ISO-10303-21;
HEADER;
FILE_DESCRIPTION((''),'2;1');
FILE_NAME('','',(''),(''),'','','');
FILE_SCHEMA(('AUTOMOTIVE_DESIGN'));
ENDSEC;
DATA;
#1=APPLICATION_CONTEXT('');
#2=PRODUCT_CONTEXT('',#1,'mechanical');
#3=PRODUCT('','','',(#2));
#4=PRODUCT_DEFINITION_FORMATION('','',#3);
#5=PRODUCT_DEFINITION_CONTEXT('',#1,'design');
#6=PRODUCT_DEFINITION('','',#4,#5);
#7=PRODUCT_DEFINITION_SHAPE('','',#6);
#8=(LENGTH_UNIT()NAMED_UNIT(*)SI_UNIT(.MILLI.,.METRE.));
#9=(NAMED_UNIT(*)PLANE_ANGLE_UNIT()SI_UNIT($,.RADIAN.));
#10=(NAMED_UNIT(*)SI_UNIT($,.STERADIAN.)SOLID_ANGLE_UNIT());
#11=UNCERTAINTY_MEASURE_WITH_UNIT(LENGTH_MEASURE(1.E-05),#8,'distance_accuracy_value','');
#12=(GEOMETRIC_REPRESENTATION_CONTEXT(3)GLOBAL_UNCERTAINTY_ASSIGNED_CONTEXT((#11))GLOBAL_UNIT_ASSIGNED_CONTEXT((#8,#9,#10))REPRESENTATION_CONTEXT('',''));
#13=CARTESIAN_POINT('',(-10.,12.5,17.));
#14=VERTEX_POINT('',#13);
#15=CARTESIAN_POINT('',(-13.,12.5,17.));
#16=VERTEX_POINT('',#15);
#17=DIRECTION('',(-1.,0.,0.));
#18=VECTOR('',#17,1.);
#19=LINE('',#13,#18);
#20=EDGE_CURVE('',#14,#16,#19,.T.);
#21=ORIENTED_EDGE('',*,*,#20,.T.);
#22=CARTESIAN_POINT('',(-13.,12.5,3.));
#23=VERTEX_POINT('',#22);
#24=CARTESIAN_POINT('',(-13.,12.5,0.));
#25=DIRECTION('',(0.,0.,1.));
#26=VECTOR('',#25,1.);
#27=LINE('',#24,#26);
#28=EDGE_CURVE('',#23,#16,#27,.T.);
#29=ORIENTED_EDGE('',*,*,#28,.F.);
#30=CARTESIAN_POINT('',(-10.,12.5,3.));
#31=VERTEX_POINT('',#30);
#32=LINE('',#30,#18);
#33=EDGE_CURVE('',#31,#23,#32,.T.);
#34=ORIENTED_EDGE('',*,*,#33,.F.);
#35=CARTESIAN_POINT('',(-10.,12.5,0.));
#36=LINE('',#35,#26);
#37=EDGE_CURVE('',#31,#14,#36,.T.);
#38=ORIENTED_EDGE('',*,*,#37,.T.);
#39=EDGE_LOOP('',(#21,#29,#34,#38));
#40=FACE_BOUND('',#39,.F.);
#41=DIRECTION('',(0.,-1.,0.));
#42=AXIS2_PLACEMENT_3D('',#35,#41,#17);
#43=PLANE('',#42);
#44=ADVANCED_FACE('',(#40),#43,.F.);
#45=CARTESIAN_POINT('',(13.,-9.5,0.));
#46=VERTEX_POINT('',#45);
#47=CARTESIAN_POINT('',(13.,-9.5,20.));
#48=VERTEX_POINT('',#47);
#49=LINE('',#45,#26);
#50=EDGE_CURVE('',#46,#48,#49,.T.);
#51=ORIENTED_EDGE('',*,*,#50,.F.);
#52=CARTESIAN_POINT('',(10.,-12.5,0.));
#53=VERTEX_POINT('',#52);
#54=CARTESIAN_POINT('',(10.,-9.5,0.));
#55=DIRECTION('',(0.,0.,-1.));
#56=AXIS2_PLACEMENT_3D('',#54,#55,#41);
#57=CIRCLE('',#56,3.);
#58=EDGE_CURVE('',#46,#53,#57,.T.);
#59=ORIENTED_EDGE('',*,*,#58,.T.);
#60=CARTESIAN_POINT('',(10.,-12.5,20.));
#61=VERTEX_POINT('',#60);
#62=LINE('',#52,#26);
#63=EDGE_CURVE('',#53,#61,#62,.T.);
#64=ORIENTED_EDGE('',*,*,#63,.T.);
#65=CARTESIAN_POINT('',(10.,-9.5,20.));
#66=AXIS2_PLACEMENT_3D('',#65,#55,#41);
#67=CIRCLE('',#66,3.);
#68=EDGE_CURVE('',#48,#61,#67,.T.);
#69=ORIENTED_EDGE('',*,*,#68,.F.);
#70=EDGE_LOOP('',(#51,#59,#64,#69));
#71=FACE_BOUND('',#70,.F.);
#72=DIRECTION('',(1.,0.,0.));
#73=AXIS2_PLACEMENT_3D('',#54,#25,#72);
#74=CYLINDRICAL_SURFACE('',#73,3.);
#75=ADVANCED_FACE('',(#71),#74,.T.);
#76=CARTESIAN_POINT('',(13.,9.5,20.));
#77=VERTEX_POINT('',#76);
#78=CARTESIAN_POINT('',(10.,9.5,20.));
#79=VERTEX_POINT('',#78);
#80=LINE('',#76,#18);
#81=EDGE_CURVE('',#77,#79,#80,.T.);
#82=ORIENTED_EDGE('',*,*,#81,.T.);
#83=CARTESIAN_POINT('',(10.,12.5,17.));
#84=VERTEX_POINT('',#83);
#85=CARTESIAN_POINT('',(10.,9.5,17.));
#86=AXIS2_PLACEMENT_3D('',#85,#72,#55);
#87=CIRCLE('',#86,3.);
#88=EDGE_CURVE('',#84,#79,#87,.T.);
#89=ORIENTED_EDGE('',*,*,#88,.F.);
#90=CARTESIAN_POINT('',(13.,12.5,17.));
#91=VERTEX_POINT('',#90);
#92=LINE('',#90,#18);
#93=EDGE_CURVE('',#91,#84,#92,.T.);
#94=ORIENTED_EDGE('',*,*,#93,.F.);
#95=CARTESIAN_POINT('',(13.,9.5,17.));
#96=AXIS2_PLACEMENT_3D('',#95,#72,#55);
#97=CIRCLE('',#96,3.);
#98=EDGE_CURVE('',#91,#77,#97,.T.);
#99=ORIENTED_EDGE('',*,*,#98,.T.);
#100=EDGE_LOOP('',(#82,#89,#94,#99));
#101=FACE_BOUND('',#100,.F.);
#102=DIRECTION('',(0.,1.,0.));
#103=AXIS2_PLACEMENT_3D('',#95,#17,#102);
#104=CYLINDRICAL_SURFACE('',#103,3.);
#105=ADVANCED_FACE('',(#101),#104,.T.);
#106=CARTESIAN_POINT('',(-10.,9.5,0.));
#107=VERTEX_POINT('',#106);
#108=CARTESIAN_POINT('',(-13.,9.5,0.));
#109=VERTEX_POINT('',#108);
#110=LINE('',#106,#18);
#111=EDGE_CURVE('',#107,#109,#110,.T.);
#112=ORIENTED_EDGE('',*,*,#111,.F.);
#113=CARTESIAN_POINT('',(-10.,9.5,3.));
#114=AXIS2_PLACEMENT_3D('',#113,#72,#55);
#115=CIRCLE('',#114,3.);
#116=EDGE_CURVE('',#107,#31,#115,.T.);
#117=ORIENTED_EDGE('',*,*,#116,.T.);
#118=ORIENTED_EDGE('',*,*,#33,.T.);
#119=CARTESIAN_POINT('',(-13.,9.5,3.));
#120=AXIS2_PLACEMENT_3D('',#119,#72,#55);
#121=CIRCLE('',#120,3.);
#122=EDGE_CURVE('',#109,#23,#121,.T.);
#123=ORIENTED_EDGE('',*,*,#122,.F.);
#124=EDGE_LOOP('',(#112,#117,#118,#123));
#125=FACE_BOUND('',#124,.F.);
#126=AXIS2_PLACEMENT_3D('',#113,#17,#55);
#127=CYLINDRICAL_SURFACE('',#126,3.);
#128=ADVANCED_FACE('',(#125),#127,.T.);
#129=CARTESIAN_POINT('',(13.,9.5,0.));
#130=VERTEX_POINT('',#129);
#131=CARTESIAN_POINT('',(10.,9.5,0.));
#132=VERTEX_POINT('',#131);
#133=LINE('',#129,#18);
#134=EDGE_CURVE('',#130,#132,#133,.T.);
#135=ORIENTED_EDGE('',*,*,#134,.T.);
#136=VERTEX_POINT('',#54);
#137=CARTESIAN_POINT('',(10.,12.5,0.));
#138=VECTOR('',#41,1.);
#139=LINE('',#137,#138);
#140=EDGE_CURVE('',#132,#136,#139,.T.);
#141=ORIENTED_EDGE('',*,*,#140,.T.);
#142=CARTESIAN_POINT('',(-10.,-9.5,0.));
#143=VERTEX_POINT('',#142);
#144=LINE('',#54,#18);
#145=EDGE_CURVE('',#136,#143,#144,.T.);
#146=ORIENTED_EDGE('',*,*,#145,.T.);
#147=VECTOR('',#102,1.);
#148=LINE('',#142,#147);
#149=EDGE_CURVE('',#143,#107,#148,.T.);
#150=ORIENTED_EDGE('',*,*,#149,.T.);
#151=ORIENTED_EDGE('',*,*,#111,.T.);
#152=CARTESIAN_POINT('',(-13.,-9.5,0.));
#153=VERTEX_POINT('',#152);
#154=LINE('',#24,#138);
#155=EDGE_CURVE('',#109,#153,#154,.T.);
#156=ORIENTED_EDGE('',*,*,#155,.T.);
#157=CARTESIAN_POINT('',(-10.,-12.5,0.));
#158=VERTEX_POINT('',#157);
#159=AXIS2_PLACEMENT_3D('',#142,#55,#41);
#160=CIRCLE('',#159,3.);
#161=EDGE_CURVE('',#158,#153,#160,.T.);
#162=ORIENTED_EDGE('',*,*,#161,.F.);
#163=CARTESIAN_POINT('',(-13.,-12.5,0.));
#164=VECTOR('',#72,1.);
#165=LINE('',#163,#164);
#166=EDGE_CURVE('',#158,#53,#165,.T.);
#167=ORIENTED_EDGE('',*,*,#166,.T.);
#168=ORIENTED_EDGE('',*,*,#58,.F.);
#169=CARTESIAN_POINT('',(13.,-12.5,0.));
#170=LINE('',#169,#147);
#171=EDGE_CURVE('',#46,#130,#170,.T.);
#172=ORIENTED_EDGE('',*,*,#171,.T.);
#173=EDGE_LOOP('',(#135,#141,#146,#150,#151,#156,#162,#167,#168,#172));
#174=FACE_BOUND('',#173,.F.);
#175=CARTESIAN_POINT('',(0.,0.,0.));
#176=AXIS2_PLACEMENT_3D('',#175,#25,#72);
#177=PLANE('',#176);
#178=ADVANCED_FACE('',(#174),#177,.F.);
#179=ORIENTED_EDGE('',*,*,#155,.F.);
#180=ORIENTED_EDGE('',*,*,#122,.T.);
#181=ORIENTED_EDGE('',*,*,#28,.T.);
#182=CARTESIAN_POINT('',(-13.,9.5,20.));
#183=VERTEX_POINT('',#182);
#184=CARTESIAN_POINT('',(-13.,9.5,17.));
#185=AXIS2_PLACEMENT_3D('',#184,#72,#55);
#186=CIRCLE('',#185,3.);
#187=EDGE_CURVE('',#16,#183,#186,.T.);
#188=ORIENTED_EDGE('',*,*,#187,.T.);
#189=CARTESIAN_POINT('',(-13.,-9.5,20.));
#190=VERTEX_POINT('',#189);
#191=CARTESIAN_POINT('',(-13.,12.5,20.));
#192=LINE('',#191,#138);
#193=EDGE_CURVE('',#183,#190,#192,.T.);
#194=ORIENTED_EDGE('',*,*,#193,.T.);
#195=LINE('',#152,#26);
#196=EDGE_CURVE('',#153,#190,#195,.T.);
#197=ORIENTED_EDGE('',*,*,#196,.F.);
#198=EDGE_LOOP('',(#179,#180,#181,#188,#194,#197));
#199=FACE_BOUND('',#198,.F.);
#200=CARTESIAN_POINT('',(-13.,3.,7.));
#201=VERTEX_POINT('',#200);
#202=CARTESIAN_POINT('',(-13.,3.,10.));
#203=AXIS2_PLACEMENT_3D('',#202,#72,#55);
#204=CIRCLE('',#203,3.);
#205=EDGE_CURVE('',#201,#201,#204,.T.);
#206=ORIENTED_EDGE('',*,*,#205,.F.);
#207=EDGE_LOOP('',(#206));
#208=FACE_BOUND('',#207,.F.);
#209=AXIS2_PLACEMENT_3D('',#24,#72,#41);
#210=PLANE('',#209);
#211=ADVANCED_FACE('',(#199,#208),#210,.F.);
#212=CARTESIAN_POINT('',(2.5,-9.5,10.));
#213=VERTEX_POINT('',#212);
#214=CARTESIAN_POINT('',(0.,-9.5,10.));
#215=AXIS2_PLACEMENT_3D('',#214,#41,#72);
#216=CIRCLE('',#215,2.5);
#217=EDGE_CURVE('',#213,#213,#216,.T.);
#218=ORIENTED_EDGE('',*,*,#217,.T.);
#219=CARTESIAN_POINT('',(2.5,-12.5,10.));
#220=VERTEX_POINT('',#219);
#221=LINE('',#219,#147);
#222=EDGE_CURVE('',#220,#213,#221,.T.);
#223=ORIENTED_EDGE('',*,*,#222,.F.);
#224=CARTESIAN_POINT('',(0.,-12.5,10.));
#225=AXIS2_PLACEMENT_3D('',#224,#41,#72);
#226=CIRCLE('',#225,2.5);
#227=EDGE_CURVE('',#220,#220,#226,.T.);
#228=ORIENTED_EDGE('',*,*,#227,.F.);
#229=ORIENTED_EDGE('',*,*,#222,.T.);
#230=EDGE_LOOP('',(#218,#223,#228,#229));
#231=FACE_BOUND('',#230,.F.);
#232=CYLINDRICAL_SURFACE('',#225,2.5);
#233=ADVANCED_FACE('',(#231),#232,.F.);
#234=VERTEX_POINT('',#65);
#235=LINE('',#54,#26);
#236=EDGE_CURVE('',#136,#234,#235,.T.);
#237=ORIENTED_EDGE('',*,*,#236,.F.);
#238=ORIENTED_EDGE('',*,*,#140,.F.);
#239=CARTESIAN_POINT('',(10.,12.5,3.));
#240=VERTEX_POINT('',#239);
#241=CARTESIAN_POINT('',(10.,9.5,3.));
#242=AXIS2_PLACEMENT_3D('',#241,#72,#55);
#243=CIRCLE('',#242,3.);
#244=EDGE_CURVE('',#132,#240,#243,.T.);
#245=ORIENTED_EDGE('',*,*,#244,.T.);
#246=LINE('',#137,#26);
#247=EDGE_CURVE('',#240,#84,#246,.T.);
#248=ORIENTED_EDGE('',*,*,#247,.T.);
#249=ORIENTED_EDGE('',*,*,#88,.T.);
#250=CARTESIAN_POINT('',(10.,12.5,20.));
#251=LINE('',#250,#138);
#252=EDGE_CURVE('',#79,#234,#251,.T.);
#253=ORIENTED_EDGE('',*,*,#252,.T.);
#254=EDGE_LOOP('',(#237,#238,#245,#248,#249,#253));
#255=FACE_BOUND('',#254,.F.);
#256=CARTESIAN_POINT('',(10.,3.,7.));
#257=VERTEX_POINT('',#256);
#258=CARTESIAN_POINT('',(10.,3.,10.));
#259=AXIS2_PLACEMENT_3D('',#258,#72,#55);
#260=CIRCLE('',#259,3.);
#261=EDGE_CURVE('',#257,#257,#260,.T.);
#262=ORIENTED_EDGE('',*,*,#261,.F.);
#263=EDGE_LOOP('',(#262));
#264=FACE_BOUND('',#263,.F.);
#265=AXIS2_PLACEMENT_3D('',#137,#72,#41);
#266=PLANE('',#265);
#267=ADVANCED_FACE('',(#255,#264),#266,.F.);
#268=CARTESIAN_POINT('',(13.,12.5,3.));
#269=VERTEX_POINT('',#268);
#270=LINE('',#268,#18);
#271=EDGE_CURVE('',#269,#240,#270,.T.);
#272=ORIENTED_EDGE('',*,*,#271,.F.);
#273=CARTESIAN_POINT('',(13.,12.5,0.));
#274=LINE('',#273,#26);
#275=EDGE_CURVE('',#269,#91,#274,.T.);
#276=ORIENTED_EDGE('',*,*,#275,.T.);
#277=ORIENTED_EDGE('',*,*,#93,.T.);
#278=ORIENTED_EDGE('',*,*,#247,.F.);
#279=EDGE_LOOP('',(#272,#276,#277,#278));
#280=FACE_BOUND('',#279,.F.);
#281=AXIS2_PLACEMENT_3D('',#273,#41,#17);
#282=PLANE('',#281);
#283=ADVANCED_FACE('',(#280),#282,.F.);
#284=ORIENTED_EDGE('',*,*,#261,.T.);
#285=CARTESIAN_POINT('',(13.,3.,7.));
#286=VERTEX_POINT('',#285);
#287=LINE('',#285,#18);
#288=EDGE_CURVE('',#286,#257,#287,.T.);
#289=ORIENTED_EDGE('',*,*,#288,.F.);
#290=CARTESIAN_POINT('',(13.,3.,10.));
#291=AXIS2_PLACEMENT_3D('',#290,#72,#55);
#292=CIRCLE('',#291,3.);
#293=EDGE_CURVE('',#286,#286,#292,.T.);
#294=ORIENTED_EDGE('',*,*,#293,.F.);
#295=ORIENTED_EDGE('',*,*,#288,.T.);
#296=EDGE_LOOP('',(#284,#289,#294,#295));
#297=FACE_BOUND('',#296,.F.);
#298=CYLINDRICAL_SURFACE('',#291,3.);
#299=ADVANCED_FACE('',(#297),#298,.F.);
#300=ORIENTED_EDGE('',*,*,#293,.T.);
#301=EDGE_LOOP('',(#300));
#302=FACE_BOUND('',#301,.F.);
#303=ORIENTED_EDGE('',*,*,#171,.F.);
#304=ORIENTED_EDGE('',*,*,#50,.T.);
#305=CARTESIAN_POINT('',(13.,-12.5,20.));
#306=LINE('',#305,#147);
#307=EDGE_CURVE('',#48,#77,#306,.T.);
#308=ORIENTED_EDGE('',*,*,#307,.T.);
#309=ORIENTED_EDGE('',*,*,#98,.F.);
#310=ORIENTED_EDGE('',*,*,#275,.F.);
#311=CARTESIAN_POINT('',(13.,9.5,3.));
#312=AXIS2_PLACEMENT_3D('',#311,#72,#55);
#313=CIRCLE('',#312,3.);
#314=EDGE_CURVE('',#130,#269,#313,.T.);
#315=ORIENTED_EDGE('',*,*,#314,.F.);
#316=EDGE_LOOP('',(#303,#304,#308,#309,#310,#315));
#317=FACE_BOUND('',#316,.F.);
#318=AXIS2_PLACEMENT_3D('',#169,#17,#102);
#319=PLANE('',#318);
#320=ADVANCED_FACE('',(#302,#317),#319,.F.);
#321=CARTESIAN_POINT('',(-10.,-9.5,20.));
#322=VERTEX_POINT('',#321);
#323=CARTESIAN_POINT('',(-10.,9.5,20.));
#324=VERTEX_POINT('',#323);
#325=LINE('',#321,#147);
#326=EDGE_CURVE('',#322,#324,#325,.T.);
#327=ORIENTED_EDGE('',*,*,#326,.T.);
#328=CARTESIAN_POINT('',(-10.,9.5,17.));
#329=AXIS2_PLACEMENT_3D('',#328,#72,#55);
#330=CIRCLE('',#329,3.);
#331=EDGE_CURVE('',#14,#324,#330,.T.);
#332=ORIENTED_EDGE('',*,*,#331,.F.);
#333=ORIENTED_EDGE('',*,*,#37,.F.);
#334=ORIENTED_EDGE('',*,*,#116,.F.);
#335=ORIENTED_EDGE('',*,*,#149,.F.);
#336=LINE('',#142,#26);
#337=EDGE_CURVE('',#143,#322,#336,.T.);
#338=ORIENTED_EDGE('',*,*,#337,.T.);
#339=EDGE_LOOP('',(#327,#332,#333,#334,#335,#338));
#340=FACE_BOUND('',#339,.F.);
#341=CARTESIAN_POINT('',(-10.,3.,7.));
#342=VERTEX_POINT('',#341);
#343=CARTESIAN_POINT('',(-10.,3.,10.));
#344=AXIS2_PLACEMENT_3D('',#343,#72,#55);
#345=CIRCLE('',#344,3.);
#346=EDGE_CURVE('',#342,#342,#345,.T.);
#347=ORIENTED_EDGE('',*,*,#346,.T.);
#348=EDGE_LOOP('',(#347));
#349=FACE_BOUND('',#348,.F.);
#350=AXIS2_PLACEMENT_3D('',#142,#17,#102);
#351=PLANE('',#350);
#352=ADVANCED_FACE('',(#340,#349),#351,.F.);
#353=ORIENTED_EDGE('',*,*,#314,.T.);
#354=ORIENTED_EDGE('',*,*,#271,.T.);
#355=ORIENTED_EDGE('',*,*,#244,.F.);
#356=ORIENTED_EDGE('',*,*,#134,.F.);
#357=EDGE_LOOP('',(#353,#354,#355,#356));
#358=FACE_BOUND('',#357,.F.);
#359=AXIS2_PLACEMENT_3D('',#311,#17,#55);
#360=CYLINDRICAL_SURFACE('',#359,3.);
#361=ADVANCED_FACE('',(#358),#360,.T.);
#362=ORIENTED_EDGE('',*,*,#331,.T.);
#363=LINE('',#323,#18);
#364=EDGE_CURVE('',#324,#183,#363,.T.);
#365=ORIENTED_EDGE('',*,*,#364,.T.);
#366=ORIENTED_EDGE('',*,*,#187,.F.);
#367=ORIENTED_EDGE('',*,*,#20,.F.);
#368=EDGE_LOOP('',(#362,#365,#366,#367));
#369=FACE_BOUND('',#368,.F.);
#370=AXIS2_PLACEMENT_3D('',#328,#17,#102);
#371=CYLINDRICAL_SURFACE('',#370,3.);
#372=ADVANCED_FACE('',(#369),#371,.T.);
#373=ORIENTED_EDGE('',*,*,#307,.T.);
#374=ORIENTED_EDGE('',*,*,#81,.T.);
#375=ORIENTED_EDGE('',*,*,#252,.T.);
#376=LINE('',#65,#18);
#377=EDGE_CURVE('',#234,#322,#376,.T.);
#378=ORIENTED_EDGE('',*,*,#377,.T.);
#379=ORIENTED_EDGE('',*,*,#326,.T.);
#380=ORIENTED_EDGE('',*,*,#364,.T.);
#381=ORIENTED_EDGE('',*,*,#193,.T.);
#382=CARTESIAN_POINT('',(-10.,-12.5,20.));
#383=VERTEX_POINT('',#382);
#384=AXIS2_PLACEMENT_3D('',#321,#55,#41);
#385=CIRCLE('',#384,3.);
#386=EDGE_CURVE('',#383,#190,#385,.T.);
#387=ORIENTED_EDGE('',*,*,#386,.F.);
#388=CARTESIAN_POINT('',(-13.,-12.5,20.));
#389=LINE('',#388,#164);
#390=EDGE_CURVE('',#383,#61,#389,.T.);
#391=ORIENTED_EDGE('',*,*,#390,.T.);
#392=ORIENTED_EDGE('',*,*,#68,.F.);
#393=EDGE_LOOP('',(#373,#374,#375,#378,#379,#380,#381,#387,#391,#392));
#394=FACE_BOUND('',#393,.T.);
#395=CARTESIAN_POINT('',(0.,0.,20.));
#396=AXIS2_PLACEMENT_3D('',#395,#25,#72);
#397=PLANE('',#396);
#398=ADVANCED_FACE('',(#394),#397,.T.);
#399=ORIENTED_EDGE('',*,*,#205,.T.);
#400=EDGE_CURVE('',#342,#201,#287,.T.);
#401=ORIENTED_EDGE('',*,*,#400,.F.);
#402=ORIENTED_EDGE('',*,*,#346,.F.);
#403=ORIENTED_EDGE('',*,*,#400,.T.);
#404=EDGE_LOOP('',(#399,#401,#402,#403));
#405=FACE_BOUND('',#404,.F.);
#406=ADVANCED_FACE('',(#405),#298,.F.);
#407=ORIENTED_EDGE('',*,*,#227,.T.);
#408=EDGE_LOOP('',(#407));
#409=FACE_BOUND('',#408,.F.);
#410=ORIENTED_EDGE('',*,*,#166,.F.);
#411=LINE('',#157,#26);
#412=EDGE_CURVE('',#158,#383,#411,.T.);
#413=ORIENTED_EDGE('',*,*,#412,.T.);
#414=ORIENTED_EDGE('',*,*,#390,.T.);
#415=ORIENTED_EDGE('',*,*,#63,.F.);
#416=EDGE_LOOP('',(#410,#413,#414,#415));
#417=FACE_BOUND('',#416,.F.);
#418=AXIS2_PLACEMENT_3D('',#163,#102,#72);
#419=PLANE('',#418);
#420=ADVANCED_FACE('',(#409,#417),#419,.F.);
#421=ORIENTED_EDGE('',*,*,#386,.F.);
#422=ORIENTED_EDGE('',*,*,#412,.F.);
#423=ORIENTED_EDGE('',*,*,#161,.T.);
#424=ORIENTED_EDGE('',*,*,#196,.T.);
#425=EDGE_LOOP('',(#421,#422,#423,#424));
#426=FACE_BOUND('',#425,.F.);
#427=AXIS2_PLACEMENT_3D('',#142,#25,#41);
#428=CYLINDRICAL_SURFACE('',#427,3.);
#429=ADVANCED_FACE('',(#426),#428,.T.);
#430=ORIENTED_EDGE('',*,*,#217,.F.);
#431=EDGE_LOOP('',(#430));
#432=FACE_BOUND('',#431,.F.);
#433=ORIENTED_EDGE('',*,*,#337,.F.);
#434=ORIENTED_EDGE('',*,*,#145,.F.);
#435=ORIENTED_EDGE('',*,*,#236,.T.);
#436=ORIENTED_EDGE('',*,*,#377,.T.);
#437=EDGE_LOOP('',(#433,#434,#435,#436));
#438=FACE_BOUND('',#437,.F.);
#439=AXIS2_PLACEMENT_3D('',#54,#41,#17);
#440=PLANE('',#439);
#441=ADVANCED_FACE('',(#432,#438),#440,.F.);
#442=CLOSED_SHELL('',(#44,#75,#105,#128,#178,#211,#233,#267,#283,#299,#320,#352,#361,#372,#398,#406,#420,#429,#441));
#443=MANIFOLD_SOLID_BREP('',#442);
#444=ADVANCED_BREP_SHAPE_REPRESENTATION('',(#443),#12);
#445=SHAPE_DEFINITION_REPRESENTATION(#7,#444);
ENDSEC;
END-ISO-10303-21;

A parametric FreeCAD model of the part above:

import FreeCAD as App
import Part
import Sketcher
from FreeCAD import Vector
Q = App.Units.Quantity


def edges_at(feature, points):
    """Names of the edges that pass closest to the given points."""
    edges = feature.Shape.Edges
    near = lambda p: min(range(len(edges)), key=lambda i: edges[i].distToShape(Part.Vertex(*p))[0])
    return sorted({f"Edge{near(p) + 1}" for p in points})


def add_polygon(sketch, points):
    """Adds a closed chain of lines whose ends are joined by coincident constraints."""
    first, n = sketch.GeometryCount, len(points)
    for a, b in zip(points, points[1:] + points[:1]):
        sketch.addGeometry(Part.LineSegment(App.Vector(*a, 0), App.Vector(*b, 0)), False)
    for i in range(n):
        sketch.addConstraint(Sketcher.Constraint("Coincident", first + i, 2, first + (i + 1) % n, 1))

doc = App.newDocument("Part")
body = doc.addObject("PartDesign::Body", "Body")

sketch1 = body.newObject("Sketcher::SketchObject", "Sketch")
sketch1.AttachmentSupport = (doc.getObject("XY_Plane"), [""])
sketch1.MapMode = "FlatFace"
add_polygon(sketch1, [(-10, -9.5), (-10, 12.5), (-13, 12.5), (-13, -12.5), (13, -12.5), (13, 12.5), (10, 12.5), (10, -9.5)])
sketch1.addConstraint(Sketcher.Constraint("Vertical", 0))
sketch1.addConstraint(Sketcher.Constraint("Horizontal", 1))
sketch1.addConstraint(Sketcher.Constraint("Vertical", 2))
sketch1.addConstraint(Sketcher.Constraint("Horizontal", 3))
sketch1.addConstraint(Sketcher.Constraint("Vertical", 4))
sketch1.addConstraint(Sketcher.Constraint("Horizontal", 5))
sketch1.addConstraint(Sketcher.Constraint("Vertical", 6))
sketch1.addConstraint(Sketcher.Constraint("Horizontal", 7))
sketch1.addConstraint(Sketcher.Constraint("Symmetric", 1, 2, 3, 2, -1, 1))
sketch1.addConstraint(Sketcher.Constraint("Symmetric", 0, 2, 5, 2, -2))
sketch1.addConstraint(Sketcher.Constraint("DistanceX", 1, 2, 1, 1, Q("3 mm")))
sketch1.addConstraint(Sketcher.Constraint("DistanceX", 3, 1, 3, 2, Q("26 mm")))
sketch1.addConstraint(Sketcher.Constraint("DistanceY", 2, 2, 2, 1, Q("25 mm")))
sketch1.addConstraint(Sketcher.Constraint("DistanceY", 3, 2, 6, 2, Q("3 mm")))
pad1 = body.newObject("PartDesign::Pad", "Pad")
pad1.Profile = sketch1
pad1.Length = 20

sketch2 = body.newObject("Sketcher::SketchObject", "Sketch001")
sketch2.AttachmentSupport = (doc.getObject("YZ_Plane"), [""])
sketch2.MapMode = "FlatFace"
sketch2.AttachmentOffset = App.Placement(Vector(0, 0, 13), App.Rotation())
sketch2.addGeometry(Part.Circle(Vector(3, 10, 0), Vector(0, 0, 1), 3), False)
sketch2.addConstraint(Sketcher.Constraint("Diameter", 0, Q("6 mm")))
sketch2.addConstraint(Sketcher.Constraint("DistanceX", -1, 1, 0, 3, Q("3 mm")))
sketch2.addConstraint(Sketcher.Constraint("DistanceY", -1, 1, 0, 3, Q("10 mm")))
pocket1 = body.newObject("PartDesign::Pocket", "Pocket")
pocket1.Profile = sketch2
pocket1.Length = 39

sketch3 = body.newObject("Sketcher::SketchObject", "Sketch002")
sketch3.AttachmentSupport = (doc.getObject("XZ_Plane"), [""])
sketch3.MapMode = "FlatFace"
sketch3.AttachmentOffset = App.Placement(Vector(0, 0, 12.5), App.Rotation())
sketch3.addGeometry(Part.Circle(Vector(0, 10, 0), Vector(0, 0, 1), 2.5), False)
sketch3.addConstraint(Sketcher.Constraint("PointOnObject", 0, 3, -2))
sketch3.addConstraint(Sketcher.Constraint("Diameter", 0, Q("5 mm")))
sketch3.addConstraint(Sketcher.Constraint("DistanceY", -1, 1, 0, 3, Q("10 mm")))
pocket2 = body.newObject("PartDesign::Pocket", "Pocket001")
pocket2.Profile = sketch3
pocket2.Length = 39
doc.recompute()

fillet = body.newObject("PartDesign::Fillet", "Fillet")
fillet.Base = (pocket2, edges_at(pocket2, [(13, -12.5, 10), (-13, -12.5, 10)]))
fillet.Radius = 3
doc.recompute()

fillet2 = body.newObject("PartDesign::Fillet", "Fillet001")
fillet2.Base = (fillet, edges_at(fillet, [
    (-11.5, 12.5, 20),
    (-11.5, 12.5, 0),
    (11.5, 12.5, 20),
    (11.5, 12.5, 0),
]))
fillet2.Radius = 3

doc.recompute()
